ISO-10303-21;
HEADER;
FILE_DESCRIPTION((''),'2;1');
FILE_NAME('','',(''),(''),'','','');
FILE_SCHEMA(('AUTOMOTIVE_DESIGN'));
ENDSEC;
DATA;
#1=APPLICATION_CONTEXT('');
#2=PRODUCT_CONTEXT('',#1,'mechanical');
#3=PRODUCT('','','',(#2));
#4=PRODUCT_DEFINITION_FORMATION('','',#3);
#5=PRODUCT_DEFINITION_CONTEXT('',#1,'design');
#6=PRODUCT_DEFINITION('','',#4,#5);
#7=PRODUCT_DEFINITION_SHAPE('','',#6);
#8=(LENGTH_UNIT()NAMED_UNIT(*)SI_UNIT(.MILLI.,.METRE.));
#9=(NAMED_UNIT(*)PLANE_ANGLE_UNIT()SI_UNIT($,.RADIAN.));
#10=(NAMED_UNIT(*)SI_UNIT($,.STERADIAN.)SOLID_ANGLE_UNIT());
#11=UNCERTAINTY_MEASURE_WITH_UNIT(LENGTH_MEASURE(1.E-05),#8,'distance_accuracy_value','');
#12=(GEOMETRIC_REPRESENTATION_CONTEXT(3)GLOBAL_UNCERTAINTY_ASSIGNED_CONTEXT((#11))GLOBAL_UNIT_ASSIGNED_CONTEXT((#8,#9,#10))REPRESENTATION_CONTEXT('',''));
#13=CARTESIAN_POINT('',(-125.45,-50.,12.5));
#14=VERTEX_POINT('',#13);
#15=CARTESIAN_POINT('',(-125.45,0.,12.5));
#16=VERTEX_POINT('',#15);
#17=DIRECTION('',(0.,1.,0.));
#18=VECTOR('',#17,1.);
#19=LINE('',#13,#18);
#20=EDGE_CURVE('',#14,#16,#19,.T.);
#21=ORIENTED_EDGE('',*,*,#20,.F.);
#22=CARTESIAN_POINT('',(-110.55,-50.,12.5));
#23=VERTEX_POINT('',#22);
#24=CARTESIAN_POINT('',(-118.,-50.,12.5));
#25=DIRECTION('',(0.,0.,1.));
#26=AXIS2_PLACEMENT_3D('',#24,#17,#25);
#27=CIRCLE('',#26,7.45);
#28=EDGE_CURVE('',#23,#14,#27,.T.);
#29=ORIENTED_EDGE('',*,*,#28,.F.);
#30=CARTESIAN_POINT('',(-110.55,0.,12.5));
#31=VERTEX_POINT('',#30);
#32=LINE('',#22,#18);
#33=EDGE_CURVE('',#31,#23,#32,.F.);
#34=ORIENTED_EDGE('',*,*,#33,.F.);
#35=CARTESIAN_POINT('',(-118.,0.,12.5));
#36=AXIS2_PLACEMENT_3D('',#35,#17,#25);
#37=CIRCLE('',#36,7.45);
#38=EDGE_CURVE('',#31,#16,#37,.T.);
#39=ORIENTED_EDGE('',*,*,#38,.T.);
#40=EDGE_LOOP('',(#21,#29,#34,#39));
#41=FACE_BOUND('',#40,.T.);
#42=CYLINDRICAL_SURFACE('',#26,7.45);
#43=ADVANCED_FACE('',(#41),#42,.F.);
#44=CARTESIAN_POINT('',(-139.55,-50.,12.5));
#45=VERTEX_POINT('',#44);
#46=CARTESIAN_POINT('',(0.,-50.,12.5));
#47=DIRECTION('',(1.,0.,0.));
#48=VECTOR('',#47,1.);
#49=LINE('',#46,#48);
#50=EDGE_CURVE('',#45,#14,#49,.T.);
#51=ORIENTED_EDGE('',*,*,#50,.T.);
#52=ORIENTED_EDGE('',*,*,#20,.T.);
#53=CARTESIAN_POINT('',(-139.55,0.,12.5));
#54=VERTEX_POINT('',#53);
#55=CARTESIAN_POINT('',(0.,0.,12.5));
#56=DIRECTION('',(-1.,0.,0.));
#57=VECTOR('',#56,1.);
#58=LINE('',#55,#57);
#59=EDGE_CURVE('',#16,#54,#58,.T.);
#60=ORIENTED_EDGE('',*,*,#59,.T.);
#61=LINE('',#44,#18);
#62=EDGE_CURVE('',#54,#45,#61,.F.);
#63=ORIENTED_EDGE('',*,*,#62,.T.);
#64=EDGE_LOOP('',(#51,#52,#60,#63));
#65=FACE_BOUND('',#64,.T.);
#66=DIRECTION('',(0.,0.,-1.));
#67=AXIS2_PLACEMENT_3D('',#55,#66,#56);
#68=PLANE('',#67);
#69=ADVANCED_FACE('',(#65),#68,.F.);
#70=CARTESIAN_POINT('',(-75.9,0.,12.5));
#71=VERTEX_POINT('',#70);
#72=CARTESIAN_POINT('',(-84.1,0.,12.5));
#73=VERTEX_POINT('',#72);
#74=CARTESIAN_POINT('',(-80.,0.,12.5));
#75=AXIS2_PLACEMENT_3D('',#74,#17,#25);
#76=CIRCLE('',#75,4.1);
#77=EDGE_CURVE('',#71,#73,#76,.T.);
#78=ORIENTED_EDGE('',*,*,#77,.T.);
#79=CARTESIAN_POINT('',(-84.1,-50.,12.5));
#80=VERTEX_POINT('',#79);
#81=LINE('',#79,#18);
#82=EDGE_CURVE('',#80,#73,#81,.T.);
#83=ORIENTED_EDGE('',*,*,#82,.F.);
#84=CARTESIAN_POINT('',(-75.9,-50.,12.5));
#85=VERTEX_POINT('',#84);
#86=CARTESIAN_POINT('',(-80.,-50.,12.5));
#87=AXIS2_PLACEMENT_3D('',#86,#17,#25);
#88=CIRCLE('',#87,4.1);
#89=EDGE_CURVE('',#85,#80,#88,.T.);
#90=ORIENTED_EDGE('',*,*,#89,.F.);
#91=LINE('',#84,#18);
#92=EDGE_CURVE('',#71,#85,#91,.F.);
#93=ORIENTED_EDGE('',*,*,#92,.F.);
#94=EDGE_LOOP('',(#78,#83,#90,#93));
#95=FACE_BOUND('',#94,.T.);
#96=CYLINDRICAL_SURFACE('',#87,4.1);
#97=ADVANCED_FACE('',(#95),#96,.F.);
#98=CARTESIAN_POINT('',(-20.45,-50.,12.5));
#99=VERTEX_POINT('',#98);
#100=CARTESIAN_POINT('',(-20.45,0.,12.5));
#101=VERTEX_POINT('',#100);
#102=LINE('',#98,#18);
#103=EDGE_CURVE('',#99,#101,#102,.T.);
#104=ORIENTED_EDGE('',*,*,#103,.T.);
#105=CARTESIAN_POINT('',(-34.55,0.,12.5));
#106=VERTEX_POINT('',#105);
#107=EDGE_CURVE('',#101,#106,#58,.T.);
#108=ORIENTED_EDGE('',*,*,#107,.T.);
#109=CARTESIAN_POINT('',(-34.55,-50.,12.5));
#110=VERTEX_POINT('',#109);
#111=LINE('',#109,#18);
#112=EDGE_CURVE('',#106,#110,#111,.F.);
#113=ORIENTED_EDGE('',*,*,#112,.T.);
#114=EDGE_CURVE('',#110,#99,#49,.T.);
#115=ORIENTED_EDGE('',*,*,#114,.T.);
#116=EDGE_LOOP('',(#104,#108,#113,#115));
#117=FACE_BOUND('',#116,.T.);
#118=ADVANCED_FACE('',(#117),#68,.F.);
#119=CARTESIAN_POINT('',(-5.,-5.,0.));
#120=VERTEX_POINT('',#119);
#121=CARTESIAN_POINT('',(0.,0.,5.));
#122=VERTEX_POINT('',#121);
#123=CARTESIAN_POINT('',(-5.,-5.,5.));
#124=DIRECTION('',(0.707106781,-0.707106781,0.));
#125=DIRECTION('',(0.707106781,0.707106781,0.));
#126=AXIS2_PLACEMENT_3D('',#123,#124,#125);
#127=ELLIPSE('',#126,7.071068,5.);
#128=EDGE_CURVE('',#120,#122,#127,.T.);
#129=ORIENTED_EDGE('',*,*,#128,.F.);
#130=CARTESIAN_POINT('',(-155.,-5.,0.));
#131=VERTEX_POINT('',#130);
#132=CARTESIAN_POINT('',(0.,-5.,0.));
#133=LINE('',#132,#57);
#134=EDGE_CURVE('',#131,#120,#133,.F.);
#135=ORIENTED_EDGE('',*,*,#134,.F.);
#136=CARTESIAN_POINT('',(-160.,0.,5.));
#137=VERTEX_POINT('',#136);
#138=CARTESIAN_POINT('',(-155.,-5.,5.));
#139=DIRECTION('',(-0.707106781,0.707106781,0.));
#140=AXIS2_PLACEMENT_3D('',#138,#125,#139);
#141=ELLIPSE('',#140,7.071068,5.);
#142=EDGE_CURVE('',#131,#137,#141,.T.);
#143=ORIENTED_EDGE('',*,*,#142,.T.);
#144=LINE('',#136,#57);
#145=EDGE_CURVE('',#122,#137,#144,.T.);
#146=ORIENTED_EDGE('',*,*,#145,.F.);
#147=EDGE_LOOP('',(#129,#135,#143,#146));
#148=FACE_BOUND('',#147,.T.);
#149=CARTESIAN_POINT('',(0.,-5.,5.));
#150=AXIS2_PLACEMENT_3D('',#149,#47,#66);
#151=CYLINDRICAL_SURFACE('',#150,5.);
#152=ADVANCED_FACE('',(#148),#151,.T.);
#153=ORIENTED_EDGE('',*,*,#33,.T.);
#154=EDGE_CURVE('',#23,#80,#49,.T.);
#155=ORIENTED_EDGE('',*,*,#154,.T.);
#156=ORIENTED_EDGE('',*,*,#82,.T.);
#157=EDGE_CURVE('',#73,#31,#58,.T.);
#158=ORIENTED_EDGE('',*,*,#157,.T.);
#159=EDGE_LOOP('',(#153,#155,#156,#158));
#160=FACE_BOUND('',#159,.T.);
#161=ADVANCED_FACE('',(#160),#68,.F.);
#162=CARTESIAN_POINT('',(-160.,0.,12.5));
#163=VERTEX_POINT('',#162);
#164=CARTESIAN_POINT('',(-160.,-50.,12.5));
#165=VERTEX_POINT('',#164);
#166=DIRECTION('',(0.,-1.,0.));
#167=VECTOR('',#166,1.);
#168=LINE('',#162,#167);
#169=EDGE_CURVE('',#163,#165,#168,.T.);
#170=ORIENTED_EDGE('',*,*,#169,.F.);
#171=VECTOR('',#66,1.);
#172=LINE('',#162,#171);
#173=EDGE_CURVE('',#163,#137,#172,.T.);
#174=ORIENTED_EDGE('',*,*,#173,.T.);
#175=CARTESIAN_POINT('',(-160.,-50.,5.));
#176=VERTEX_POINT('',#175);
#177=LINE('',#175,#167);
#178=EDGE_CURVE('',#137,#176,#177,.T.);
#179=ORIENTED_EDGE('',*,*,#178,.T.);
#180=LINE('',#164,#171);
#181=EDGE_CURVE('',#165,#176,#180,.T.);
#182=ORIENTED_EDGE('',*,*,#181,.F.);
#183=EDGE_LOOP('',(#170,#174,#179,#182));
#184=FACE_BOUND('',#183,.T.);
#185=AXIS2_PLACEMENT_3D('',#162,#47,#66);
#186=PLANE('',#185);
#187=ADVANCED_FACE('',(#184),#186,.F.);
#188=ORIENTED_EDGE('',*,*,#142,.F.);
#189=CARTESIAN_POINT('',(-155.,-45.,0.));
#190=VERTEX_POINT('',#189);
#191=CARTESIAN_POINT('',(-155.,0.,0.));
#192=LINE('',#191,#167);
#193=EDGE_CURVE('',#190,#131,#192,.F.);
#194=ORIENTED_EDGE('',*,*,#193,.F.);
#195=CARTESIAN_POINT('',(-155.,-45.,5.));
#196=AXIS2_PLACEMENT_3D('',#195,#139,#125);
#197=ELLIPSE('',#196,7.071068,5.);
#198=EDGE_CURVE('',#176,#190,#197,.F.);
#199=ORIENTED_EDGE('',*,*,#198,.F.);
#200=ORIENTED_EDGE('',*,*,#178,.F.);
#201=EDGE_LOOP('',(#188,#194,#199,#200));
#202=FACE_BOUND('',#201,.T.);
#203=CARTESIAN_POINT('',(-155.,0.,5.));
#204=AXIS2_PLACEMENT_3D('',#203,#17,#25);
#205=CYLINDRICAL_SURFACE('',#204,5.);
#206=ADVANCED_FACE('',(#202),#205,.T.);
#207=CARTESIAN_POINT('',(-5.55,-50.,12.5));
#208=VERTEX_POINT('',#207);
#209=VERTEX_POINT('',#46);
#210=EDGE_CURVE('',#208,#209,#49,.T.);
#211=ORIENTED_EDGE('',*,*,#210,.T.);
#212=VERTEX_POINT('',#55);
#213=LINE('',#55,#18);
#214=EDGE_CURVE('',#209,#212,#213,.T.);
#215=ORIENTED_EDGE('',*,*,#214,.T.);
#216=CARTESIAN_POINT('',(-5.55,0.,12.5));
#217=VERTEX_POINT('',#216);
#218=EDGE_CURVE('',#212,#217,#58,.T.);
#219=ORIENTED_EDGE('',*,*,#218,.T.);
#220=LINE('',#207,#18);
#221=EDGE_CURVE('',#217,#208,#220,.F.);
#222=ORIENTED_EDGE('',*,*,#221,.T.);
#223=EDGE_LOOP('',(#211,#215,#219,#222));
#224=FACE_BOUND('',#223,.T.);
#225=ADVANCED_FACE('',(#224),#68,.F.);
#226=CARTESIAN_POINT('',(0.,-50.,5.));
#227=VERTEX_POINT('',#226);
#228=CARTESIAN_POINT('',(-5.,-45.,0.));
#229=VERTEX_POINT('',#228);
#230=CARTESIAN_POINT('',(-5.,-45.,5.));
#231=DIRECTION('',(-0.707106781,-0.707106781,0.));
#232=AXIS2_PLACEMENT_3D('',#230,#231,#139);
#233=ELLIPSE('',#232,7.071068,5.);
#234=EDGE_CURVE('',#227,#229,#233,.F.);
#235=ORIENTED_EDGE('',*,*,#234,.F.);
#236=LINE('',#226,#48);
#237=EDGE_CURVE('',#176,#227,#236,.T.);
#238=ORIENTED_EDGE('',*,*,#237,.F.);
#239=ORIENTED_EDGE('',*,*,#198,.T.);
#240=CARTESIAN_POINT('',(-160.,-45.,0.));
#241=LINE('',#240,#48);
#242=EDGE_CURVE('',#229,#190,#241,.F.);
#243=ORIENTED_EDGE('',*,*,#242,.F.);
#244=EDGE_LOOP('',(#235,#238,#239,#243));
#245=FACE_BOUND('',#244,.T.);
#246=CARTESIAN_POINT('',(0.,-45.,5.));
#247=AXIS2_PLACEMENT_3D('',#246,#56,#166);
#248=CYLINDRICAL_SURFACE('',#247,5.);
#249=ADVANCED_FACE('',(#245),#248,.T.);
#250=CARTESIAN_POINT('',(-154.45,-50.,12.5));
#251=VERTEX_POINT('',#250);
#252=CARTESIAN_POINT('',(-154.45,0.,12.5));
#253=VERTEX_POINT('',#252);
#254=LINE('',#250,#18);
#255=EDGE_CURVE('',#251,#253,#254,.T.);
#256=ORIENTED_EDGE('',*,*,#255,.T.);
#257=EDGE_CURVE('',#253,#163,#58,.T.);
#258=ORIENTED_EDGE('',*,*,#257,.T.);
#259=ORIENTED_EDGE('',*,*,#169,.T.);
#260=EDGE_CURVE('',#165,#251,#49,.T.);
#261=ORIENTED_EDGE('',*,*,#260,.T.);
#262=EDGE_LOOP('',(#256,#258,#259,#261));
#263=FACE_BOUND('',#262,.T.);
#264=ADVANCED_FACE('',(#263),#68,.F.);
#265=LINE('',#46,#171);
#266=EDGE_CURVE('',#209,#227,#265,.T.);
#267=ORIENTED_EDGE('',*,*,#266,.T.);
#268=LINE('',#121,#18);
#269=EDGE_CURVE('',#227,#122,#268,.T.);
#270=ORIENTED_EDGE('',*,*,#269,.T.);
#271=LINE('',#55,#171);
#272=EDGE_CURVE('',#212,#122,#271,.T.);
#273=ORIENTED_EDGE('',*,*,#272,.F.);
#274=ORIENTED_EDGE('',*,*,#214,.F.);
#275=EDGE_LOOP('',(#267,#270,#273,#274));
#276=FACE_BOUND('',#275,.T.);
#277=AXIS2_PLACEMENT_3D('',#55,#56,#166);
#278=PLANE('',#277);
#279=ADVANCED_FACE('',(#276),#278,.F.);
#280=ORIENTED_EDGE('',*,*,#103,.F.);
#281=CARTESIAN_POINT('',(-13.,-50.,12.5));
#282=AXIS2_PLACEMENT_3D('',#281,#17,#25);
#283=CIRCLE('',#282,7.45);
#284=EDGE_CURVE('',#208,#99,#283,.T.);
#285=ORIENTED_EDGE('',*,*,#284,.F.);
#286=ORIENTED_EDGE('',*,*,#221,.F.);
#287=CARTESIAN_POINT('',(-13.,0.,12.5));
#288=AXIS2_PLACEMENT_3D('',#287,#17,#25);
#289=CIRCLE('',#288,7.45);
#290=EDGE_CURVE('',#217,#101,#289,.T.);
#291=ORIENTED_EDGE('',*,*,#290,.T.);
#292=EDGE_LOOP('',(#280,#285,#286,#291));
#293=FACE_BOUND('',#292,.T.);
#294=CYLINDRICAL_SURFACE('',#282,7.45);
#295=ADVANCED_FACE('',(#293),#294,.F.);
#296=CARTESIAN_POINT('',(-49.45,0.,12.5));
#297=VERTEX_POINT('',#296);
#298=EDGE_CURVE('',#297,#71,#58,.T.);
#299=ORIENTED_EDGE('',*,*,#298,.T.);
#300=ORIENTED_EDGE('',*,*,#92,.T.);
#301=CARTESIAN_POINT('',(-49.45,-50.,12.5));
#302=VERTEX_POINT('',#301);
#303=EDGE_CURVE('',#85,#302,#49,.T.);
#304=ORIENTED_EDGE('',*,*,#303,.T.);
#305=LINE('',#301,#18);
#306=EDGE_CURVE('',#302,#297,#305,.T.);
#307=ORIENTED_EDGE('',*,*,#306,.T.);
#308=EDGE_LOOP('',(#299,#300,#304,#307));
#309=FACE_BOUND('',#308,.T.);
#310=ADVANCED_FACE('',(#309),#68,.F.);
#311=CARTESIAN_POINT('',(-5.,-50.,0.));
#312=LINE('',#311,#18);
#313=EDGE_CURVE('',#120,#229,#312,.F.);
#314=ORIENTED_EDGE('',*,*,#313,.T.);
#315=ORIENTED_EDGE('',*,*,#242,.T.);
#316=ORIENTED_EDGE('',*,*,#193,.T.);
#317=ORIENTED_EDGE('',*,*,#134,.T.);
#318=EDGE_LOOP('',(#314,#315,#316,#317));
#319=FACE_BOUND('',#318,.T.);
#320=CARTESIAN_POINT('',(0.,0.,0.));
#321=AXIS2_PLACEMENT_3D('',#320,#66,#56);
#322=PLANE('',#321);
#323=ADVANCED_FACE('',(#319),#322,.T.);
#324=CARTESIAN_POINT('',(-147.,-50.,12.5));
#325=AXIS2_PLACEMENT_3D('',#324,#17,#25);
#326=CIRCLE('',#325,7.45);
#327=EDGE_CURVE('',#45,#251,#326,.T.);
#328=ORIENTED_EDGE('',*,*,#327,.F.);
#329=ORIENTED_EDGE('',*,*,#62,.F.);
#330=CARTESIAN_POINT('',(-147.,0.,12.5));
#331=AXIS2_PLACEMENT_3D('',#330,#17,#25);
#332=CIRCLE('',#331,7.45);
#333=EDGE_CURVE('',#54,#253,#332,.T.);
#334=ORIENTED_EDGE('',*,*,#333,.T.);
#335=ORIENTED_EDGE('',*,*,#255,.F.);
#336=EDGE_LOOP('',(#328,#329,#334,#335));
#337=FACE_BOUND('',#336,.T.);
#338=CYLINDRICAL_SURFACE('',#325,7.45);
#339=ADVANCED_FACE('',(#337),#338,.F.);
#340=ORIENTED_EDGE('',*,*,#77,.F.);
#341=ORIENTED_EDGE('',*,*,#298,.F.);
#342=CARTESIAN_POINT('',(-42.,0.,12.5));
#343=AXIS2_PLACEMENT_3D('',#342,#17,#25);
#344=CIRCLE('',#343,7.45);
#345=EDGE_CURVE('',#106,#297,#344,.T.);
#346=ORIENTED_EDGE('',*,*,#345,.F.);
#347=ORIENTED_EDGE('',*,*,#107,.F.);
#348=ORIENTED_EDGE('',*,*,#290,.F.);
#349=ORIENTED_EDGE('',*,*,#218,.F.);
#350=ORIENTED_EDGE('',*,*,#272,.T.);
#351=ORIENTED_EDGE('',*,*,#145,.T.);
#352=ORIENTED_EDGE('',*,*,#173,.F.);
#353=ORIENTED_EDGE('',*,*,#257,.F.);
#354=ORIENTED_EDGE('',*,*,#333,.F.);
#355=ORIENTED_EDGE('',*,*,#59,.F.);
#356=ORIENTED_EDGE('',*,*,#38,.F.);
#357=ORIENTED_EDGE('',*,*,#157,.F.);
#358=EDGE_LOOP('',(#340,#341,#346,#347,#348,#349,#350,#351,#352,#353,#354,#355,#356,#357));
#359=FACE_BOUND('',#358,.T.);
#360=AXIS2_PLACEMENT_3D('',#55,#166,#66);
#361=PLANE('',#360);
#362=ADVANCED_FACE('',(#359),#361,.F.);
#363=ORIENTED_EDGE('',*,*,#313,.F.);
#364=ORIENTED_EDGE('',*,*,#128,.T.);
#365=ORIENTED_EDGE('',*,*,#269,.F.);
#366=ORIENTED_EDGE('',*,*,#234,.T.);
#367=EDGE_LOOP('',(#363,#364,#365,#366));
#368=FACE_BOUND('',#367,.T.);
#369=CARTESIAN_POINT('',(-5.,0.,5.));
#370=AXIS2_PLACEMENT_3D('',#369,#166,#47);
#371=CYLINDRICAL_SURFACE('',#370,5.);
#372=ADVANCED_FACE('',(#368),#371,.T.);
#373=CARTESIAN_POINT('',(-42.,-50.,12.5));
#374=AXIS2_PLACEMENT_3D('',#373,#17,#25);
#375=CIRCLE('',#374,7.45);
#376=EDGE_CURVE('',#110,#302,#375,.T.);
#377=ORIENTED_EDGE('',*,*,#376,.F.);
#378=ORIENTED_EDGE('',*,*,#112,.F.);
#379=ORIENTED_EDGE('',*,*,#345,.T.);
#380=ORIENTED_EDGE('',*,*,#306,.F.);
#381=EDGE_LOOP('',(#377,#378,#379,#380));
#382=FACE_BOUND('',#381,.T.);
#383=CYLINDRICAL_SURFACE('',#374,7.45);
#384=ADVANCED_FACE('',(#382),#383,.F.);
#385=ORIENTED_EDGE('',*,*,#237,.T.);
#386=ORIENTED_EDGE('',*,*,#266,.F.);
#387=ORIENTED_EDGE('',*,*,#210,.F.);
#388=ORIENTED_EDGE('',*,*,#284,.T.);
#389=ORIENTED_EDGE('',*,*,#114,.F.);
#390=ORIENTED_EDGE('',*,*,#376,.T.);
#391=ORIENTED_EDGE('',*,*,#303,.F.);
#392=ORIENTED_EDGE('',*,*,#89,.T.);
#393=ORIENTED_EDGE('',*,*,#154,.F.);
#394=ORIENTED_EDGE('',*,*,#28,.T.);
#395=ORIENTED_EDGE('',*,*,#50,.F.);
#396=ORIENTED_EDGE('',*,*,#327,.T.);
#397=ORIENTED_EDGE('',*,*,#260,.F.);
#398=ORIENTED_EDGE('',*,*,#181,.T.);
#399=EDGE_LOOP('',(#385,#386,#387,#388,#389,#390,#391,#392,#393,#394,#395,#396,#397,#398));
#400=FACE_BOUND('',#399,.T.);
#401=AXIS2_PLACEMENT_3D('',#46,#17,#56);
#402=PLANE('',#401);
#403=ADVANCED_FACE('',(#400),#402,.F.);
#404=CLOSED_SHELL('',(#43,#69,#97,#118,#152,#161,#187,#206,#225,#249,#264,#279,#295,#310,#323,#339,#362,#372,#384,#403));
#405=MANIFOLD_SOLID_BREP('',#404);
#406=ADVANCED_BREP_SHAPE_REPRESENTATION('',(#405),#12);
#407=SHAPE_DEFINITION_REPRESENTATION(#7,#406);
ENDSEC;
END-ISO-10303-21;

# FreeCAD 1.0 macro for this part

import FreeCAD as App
import Part
import Sketcher

V = App.Vector
Q = App.Units.Quantity


def edges_at(feature, points):
    """Names of the edges that pass closest to the given points."""
    edges = feature.Shape.Edges
    near = lambda p: min(range(len(edges)), key=lambda i: edges[i].distToShape(Part.Vertex(*p))[0])
    return sorted({f"Edge{near(p) + 1}" for p in points})


def add_polygon(sketch, points):
    """Adds a closed chain of lines whose ends are joined by coincident constraints."""
    first, n = sketch.GeometryCount, len(points)
    for a, b in zip(points, points[1:] + points[:1]):
        sketch.addGeometry(Part.LineSegment(App.Vector(*a, 0), App.Vector(*b, 0)), False)
    for i in range(n):
        sketch.addConstraint(Sketcher.Constraint("Coincident", first + i, 2, first + (i + 1) % n, 1))

doc = App.newDocument("Part")
body = doc.addObject("PartDesign::Body", "Body")

sketch1 = doc.addObject("Sketcher::SketchObject", "Sketch")
body.addObject(sketch1)
sketch1.AttachmentSupport = (doc.XY_Plane, [""])
sketch1.MapMode = "FlatFace"
add_polygon(sketch1, [(-160, 0), (-160, -50), (0, -50), (0, 0)])
sketch1.addConstraint([
    Sketcher.Constraint("Vertical", 0),
    Sketcher.Constraint("Horizontal", 1),
    Sketcher.Constraint("Vertical", 2),
    Sketcher.Constraint("Horizontal", 3),
    Sketcher.Constraint("Coincident", 2, 2, -1, 1),
    Sketcher.Constraint("DistanceX", 1, 1, 1, 2, Q("160 mm")),
    Sketcher.Constraint("DistanceY", 0, 2, 0, 1, Q("50 mm")),
])
pad1 = doc.addObject("PartDesign::Pad", "Pad")
body.addObject(pad1)
pad1.Profile = sketch1
pad1.Length = 12.5

sketch2 = doc.addObject("Sketcher::SketchObject", "Sketch001")
body.addObject(sketch2)
sketch2.AttachmentSupport = (doc.XZ_Plane, [""])
sketch2.MapMode = "FlatFace"
sketch2.addGeometry([
    Part.Circle(V(-147, 12.5, 0), V(0, 0, 1), 7.5),
    Part.Circle(V(-118, 12.5, 0), V(0, 0, 1), 7.5),
    Part.Circle(V(-13, 12.5, 0), V(0, 0, 1), 7.5),
    Part.Circle(V(-42, 12.5, 0), V(0, 0, 1), 7.5),
    Part.Circle(V(-80, 12.5, 0), V(0, 0, 1), 4.1),
], False)
sketch2.addConstraint([
    Sketcher.Constraint("Equal", 0, 1),
    Sketcher.Constraint("Equal", 1, 2),
    Sketcher.Constraint("Equal", 2, 3),
    Sketcher.Constraint("Horizontal", 0, 3, 1, 3),
    Sketcher.Constraint("Horizontal", 1, 3, 2, 3),
    Sketcher.Constraint("Horizontal", 2, 3, 3, 3),
    Sketcher.Constraint("Horizontal", 3, 3, 4, 3),
    Sketcher.Constraint("Diameter", 0, Q("14.9 mm")),
    Sketcher.Constraint("Diameter", 4, Q("8.2 mm")),
    Sketcher.Constraint("DistanceX", 0, 3, -1, 1, Q("147 mm")),
    Sketcher.Constraint("DistanceX", 1, 3, -1, 1, Q("118 mm")),
    Sketcher.Constraint("DistanceX", 2, 3, -1, 1, Q("13 mm")),
    Sketcher.Constraint("DistanceX", 3, 3, -1, 1, Q("42 mm")),
    Sketcher.Constraint("DistanceX", 4, 3, -1, 1, Q("80 mm")),
    Sketcher.Constraint("DistanceY", -1, 1, 0, 3, Q("12.5 mm")),
])
pocket1 = doc.addObject("PartDesign::Pocket", "Pocket")
body.addObject(pocket1)
pocket1.Profile = sketch2
pocket1.Type = "ThroughAll"
pocket1.Reversed = True
doc.recompute()

fillet = doc.addObject("PartDesign::Fillet", "Fillet")
body.addObject(fillet)
fillet.Base = (pocket1, edges_at(pocket1, [
    (-80, -50, 0),
    (-160, -25, 0),
    (-80, 0, 0),
    (0, -25, 0),
]))
fillet.Radius = 5

doc.recompute()
